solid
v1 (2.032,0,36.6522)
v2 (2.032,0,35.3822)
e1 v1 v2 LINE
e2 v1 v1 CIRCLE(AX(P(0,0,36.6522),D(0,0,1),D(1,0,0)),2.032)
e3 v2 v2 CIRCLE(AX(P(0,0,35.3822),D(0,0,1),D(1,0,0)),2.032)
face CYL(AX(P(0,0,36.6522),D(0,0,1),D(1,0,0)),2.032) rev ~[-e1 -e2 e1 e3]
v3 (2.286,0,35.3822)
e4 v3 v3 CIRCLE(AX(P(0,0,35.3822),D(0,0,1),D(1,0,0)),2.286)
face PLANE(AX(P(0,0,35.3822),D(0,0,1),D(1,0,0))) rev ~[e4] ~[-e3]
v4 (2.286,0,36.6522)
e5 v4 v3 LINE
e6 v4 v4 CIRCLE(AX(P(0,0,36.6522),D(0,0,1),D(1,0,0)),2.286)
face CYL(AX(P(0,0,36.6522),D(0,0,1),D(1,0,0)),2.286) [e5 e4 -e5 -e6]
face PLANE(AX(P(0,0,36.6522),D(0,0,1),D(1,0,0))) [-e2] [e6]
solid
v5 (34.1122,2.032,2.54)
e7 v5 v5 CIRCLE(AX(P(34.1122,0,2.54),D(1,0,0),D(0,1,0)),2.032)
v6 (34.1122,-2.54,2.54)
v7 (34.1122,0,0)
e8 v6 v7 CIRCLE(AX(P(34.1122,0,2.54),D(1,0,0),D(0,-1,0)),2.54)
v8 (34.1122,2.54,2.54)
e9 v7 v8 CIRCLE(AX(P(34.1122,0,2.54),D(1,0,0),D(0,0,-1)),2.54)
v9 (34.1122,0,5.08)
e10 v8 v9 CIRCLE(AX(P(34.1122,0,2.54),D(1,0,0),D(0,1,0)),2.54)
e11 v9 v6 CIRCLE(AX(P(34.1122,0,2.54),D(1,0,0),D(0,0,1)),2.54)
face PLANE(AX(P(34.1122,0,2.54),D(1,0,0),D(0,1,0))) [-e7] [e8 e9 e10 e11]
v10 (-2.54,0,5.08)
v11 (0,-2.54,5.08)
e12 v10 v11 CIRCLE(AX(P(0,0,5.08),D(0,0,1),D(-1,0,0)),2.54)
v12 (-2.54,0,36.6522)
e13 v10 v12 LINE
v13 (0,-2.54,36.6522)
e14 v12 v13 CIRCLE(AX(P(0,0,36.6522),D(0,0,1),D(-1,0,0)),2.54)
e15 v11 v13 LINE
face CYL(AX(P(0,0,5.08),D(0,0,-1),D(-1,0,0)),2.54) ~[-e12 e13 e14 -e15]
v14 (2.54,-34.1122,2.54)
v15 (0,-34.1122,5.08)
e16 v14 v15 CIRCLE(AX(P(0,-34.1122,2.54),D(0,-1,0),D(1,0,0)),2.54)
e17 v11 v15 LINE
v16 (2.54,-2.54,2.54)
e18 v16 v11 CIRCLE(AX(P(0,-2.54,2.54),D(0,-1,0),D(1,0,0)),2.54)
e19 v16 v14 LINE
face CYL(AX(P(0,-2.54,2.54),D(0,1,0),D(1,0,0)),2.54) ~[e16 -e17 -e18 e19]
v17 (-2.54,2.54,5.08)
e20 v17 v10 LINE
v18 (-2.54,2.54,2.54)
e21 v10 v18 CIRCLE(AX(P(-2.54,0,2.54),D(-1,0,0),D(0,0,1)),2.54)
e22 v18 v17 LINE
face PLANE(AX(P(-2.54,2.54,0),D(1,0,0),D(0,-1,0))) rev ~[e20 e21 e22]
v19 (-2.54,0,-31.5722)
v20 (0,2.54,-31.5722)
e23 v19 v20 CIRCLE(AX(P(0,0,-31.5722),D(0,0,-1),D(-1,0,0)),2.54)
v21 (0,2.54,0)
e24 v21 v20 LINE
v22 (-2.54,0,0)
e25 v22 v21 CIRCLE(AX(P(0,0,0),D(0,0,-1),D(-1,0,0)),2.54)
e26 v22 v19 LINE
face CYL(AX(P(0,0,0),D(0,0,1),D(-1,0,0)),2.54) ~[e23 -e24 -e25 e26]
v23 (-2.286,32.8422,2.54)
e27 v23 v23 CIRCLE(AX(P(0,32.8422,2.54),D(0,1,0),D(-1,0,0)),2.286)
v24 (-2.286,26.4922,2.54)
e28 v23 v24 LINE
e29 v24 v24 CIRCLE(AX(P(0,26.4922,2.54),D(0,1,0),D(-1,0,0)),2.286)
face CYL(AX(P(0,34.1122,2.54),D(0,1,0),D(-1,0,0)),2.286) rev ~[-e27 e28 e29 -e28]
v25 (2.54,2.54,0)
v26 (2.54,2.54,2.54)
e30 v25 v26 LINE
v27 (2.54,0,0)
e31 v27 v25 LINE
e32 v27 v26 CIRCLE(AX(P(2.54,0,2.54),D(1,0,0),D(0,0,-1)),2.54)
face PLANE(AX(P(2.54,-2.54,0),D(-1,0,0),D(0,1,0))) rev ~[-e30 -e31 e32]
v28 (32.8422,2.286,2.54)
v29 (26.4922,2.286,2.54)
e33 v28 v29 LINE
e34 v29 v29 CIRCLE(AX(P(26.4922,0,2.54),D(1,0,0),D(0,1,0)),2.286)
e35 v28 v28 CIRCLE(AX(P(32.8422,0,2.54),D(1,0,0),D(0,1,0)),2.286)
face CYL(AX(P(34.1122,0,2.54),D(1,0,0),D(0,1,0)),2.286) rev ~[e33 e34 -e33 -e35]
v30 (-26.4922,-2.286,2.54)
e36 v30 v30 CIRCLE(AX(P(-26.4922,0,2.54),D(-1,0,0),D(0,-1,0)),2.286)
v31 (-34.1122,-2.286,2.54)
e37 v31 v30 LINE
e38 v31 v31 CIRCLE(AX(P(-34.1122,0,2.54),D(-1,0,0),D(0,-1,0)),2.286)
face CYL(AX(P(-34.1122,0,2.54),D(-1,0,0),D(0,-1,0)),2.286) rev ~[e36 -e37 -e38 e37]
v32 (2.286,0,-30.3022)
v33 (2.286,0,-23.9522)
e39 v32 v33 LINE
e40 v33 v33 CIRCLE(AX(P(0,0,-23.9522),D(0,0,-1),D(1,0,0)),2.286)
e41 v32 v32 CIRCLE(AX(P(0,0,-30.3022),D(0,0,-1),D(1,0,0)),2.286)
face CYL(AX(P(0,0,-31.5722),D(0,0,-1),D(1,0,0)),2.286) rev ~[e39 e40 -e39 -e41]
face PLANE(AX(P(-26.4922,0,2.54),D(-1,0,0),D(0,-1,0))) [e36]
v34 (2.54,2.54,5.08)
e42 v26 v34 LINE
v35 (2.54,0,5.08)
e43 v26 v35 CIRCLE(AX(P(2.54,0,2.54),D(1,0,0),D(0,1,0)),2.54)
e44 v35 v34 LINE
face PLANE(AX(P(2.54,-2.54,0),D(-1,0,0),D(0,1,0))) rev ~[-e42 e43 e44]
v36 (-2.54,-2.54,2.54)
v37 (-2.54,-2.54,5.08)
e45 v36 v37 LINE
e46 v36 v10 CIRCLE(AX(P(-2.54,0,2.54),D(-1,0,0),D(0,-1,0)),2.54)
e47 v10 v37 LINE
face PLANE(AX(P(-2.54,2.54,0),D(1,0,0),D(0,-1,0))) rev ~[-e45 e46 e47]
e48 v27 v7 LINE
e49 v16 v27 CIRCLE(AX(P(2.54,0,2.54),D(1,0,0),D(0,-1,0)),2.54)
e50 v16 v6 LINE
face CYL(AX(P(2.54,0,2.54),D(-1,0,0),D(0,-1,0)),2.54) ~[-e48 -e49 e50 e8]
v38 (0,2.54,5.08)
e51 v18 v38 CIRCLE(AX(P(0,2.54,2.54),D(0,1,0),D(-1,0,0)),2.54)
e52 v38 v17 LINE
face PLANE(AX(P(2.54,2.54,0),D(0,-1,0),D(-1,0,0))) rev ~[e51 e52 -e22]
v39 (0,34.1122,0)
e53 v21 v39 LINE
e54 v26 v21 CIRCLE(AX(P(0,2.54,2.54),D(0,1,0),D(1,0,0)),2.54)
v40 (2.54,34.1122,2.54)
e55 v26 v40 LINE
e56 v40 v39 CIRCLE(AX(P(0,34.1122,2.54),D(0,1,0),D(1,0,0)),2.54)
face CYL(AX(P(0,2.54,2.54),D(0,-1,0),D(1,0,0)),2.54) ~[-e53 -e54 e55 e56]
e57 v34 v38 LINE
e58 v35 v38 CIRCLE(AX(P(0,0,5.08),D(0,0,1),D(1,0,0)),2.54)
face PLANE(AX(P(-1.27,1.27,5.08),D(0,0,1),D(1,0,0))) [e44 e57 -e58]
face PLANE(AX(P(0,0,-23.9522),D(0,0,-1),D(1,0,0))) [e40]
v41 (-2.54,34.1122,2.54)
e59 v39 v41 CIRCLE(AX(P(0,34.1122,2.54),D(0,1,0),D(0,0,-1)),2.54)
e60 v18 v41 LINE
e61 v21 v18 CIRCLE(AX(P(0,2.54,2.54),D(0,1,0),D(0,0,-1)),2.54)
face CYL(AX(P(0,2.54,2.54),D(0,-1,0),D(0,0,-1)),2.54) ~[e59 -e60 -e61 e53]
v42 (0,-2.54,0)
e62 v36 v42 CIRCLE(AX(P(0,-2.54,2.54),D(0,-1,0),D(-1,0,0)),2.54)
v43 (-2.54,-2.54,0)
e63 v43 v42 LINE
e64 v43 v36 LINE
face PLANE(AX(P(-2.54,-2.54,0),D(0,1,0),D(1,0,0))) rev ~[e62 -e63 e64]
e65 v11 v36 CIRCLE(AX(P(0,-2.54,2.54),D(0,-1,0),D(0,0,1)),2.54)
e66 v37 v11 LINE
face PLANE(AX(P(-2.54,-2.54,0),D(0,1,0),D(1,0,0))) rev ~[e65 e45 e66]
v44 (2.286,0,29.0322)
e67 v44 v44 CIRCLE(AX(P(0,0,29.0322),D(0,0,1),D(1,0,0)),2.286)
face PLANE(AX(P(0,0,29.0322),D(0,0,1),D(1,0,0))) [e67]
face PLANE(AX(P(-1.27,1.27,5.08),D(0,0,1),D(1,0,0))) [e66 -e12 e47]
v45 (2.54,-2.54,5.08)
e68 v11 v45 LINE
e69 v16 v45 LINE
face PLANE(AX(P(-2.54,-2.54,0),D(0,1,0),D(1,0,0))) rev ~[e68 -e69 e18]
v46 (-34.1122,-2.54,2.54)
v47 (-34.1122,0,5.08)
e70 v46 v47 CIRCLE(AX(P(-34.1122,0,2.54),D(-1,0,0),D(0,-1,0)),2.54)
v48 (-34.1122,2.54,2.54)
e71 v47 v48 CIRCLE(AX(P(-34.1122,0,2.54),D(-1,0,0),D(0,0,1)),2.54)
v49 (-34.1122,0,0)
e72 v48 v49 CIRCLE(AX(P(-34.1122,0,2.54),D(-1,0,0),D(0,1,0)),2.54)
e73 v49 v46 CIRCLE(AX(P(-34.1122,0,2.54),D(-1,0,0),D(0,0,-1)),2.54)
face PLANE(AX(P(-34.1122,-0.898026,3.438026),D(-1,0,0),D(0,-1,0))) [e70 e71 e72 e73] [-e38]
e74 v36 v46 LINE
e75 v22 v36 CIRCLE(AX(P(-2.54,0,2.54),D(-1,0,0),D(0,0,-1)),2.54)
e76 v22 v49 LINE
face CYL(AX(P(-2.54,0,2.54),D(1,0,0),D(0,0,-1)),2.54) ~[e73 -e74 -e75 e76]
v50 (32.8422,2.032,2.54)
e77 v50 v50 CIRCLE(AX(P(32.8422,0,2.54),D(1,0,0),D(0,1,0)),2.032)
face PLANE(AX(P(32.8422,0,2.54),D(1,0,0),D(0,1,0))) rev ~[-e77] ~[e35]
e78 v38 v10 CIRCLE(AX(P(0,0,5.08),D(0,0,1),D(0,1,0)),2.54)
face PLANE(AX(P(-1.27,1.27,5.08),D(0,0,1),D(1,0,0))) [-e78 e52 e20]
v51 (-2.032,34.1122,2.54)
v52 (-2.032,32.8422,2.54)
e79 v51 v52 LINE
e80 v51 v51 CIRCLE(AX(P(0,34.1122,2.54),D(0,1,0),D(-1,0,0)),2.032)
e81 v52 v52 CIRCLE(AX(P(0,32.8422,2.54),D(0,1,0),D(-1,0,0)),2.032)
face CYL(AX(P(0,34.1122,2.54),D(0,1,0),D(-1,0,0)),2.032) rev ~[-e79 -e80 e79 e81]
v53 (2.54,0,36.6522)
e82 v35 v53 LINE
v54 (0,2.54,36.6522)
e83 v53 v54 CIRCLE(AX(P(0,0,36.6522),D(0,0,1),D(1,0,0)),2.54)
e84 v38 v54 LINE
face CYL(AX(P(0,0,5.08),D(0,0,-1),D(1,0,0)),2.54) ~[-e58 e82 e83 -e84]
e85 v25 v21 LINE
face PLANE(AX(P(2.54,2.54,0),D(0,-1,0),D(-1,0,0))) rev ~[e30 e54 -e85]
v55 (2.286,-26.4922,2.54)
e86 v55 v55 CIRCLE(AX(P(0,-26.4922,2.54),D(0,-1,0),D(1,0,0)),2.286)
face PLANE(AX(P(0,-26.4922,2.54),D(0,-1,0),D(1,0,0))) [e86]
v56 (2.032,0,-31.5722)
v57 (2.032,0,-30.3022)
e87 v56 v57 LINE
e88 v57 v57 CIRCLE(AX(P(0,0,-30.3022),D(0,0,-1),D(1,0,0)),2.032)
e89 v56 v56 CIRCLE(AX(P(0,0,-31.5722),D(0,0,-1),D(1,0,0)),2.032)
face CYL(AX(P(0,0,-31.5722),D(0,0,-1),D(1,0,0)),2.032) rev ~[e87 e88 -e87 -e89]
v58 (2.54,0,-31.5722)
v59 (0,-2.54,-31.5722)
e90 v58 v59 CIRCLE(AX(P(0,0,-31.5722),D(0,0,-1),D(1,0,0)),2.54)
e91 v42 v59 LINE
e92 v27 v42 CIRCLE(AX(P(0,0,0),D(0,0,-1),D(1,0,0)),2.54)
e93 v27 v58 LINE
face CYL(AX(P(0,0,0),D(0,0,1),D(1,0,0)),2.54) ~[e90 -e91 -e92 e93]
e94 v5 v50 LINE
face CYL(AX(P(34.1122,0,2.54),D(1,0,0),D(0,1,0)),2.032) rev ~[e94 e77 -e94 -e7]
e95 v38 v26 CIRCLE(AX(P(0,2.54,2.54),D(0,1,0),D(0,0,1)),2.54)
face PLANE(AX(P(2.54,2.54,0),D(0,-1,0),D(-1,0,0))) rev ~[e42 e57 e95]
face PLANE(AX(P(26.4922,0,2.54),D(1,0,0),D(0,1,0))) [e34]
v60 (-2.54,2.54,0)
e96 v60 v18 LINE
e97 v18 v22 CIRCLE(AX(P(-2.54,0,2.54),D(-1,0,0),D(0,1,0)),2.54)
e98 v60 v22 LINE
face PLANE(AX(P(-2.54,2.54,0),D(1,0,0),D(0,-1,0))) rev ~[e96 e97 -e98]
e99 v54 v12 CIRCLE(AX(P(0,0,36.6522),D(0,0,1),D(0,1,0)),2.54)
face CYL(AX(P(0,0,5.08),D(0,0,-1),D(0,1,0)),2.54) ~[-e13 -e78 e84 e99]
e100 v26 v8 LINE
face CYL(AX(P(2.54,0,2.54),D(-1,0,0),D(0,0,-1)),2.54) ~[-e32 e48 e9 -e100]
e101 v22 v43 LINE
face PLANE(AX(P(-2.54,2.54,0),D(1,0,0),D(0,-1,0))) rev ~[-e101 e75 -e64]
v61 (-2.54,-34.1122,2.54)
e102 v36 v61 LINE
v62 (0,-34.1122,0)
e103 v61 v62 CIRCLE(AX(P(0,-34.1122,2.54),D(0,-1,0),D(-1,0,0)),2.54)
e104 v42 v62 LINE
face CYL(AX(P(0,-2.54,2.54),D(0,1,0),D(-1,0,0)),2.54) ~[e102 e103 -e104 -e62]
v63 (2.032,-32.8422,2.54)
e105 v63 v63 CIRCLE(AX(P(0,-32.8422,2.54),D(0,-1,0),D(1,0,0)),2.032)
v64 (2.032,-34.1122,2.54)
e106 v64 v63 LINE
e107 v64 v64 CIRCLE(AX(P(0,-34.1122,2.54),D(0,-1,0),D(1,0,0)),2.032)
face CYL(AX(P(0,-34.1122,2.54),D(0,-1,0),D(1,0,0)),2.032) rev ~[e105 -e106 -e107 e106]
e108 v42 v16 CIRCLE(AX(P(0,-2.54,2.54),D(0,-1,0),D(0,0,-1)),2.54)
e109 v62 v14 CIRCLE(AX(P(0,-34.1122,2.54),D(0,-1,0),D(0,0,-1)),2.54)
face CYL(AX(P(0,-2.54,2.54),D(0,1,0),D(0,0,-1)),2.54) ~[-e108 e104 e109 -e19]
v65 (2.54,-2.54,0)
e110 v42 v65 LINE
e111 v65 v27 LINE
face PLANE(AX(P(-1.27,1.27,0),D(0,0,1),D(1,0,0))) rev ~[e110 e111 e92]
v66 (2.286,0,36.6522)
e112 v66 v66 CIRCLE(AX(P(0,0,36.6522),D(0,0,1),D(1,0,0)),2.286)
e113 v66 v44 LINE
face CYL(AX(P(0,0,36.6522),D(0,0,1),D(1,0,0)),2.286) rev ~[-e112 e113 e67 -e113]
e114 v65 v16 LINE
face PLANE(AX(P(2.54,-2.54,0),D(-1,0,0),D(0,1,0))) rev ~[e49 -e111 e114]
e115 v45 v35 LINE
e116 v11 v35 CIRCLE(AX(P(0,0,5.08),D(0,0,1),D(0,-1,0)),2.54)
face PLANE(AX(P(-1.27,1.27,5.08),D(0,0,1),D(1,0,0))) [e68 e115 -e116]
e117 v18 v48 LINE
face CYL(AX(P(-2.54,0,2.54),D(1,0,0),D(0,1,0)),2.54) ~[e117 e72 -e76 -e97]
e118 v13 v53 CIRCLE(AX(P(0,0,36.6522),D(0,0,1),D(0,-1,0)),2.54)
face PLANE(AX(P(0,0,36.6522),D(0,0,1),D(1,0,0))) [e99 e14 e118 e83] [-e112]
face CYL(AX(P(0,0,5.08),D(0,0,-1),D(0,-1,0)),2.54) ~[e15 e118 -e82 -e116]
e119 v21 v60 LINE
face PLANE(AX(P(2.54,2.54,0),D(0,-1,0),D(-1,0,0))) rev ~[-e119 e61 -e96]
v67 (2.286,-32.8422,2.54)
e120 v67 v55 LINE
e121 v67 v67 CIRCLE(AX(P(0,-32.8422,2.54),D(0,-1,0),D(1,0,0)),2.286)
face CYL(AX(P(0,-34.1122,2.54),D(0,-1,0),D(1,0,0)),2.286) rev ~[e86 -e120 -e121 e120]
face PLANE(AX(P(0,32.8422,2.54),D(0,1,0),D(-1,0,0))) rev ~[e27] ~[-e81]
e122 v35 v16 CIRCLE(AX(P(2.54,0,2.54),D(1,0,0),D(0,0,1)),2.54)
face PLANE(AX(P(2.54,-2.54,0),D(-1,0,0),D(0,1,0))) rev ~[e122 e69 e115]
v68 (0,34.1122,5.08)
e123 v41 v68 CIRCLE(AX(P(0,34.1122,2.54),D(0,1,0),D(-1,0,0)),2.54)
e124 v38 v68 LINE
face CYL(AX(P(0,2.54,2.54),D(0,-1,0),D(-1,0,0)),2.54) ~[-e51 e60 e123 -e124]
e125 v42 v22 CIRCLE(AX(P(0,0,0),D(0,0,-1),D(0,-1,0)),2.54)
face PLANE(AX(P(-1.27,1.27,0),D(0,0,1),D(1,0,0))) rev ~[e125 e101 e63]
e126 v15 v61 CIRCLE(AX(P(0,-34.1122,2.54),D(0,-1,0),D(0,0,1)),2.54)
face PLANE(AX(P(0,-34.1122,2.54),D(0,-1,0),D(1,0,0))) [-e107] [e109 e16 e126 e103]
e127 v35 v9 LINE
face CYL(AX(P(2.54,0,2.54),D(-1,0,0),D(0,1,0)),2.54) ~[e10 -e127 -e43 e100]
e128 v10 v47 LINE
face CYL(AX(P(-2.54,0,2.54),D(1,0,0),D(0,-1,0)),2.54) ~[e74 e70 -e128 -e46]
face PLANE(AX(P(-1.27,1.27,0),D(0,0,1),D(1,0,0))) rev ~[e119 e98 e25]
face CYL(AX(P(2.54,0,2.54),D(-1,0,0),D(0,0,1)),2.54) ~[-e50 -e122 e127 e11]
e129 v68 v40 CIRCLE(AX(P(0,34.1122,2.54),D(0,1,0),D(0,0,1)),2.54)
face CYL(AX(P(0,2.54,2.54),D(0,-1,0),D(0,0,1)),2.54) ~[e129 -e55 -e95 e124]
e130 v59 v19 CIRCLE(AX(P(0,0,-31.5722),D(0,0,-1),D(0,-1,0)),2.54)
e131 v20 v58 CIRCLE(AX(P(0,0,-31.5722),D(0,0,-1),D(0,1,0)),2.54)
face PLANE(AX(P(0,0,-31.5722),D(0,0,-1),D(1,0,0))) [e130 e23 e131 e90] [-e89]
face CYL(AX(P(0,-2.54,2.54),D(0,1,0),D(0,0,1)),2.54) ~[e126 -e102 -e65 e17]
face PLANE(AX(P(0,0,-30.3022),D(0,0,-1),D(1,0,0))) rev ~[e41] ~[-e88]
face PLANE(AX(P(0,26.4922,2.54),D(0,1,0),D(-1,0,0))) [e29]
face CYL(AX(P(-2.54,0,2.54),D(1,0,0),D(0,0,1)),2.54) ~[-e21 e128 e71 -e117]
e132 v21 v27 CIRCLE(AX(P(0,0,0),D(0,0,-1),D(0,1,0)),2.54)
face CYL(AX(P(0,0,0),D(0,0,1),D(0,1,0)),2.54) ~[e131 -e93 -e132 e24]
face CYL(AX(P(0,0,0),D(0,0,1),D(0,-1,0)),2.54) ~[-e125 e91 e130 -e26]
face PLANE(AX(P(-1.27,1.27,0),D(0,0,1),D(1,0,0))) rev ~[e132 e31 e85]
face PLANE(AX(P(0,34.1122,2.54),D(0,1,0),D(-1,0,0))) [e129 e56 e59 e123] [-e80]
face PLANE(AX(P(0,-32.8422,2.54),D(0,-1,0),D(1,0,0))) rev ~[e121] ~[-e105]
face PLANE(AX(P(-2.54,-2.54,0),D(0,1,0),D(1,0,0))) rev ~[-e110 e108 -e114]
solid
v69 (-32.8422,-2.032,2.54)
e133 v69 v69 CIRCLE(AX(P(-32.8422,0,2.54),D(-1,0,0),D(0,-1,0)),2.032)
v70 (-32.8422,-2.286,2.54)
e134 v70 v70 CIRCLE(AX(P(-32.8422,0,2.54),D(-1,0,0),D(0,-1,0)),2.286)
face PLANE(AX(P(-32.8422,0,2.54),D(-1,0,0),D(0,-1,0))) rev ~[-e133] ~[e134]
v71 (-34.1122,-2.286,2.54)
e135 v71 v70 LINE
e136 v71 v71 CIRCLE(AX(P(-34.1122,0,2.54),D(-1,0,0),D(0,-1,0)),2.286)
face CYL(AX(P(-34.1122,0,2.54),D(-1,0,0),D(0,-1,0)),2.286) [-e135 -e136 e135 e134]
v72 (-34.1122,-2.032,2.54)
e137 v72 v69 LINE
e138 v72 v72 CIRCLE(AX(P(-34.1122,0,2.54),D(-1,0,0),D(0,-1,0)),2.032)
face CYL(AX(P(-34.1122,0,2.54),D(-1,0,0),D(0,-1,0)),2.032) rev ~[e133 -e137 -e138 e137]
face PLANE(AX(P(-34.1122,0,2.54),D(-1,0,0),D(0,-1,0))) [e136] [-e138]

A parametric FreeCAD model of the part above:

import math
import FreeCAD as App
import Part
import Sketcher
Q = App.Units.Quantity

doc = App.newDocument("Part")
params = doc.addObject("Spreadsheet::Sheet", "Params")
for row, (alias, value) in enumerate([
    ("sketch1_width", "0.2 in"),
    ("pad1_length", "0.2 in"),
    ("sketch2_radius", "0.1 in"),
    ("pad2_length", "1.243 in"),
    ("sketch3_diameter", "0.18 in"),
    ("pocket1_length", "0.3 in"),
    ("sketch4_diameter", "0.18 in"),
    ("sketch4_diameter2", "0.16 in"),
    ("pad3_length", "0.05 in"),
    ("sketch5_radius", "0.1 in"),
    ("pad4_length", "1.243 in"),
    ("sketch6_diameter", "0.18 in"),
    ("pocket2_length", "0.3 in"),
    ("sketch7_diameter", "0.18 in"),
    ("sketch7_diameter2", "0.16 in"),
    ("pad5_length", "0.05 in"),
    ("sketch8_radius", "0.1 in"),
    ("pad6_length", "1.243 in"),
    ("sketch9_diameter", "0.18 in"),
    ("pocket3_length", "0.3 in"),
    ("sketch10_diameter", "0.18 in"),
    ("sketch10_diameter2", "0.16 in"),
    ("pad7_length", "0.05 in"),
    ("sketch11_radius", "0.1 in"),
    ("pad8_length", "1.243 in"),
    ("sketch12_diameter", "0.18 in"),
    ("pocket4_length", "0.3 in"),
    ("sketch13_diameter", "0.18 in"),
    ("sketch13_diameter2", "0.16 in"),
    ("pad9_length", "0.05 in"),
    ("sketch14_radius", "0.1 in"),
    ("pad10_length", "1.243 in"),
    ("sketch15_diameter", "0.18 in"),
    ("pocket5_length", "0.3 in"),
    ("sketch16_radius", "0.1 in"),
    ("pad11_length", "1.243 in"),
    ("sketch17_diameter", "0.18 in"),
    ("pocket6_length", "0.3 in"),
    ("sketch18_diameter", "0.18 in"),
    ("sketch18_diameter2", "0.16 in"),
    ("pad12_length", "0.05 in"),
    ("sketch19_diameter", "0.18 in"),
    ("sketch19_diameter2", "0.16 in"),
    ("pad13_length", "0.05 in"),
], start=1):
    params.set(f"A{row}", alias)
    params.set(f"B{row}", "=" + value)
    params.setAlias(f"B{row}", alias)

body = doc.addObject("PartDesign::Body", "Body")

sketch1 = body.newObject("Sketcher::SketchObject", "Sketch")
sketch1.AttachmentSupport = (doc.getObject("XY_Plane"), [""])
sketch1.MapMode = "FlatFace"
sketch1.addGeometry(Part.LineSegment(App.Vector(-3, 3, 0), App.Vector(-3, -3, 0)), False)
sketch1.addGeometry(Part.LineSegment(App.Vector(-3, -3, 0), App.Vector(3, -3, 0)), False)
sketch1.addGeometry(Part.LineSegment(App.Vector(3, -3, 0), App.Vector(3, 3, 0)), False)
sketch1.addGeometry(Part.LineSegment(App.Vector(3, 3, 0), App.Vector(-3, 3, 0)), False)
sketch1.addConstraint(Sketcher.Constraint("Coincident", 0, 2, 1, 1))
sketch1.addConstraint(Sketcher.Constraint("Coincident", 1, 2, 2, 1))
sketch1.addConstraint(Sketcher.Constraint("Coincident", 2, 2, 3, 1))
sketch1.addConstraint(Sketcher.Constraint("Coincident", 3, 2, 0, 1))
sketch1.addConstraint(Sketcher.Constraint("Vertical", 0))
sketch1.addConstraint(Sketcher.Constraint("Horizontal", 1))
sketch1.addConstraint(Sketcher.Constraint("Vertical", 2))
sketch1.addConstraint(Sketcher.Constraint("Horizontal", 3))
sketch1.addConstraint(Sketcher.Constraint("Symmetric", 0, 2, 2, 2, -1, 1))
sketch1.addConstraint(Sketcher.Constraint("Equal", 3, 0))
sketch1.addConstraint(Sketcher.Constraint("DistanceX", 1, 1, 1, 2, Q("0.2 in")))
sketch1.setExpression("Constraints[10]", "Params.sketch1_width")
pad1 = body.newObject("PartDesign::Pad", "Pad")
pad1.Profile = sketch1
pad1.setExpression("Length", "Params.pad1_length")

sketch2 = body.newObject("Sketcher::SketchObject", "Sketch001")
sketch2.AttachmentSupport = (doc.getObject("XY_Plane"), [""])
sketch2.MapMode = "FlatFace"
sketch2.addGeometry(Part.ArcOfCircle(Part.Circle(App.Vector(0, 0, 0), App.Vector(0, 0, 1), 2.5), math.radians(0), math.radians(90)), False)
sketch2.addGeometry(Part.ArcOfCircle(Part.Circle(App.Vector(0, 0, 0), App.Vector(0, 0, 1), 2.5), math.radians(-90), math.radians(0)), False)
sketch2.addGeometry(Part.ArcOfCircle(Part.Circle(App.Vector(0, 0, 0), App.Vector(0, 0, 1), 2.5), math.radians(180), math.radians(270)), False)
sketch2.addGeometry(Part.ArcOfCircle(Part.Circle(App.Vector(0, 0, 0), App.Vector(0, 0, 1), 2.5), math.radians(90), math.radians(180)), False)
sketch2.addConstraint(Sketcher.Constraint("Tangent", 0, 1, 1, 2))
sketch2.addConstraint(Sketcher.Constraint("Tangent", 1, 1, 2, 2))
sketch2.addConstraint(Sketcher.Constraint("Tangent", 2, 1, 3, 2))
sketch2.addConstraint(Sketcher.Constraint("Tangent", 3, 1, 0, 2))
sketch2.addConstraint(Sketcher.Constraint("Coincident", 0, 3, -1, 1))
sketch2.addConstraint(Sketcher.Constraint("Equal", 0, 1))
sketch2.addConstraint(Sketcher.Constraint("PointOnObject", 0, 1, -1))
sketch2.addConstraint(Sketcher.Constraint("PointOnObject", 1, 1, -2))
sketch2.addConstraint(Sketcher.Constraint("PointOnObject", 2, 1, -1))
sketch2.addConstraint(Sketcher.Constraint("PointOnObject", 3, 1, -2))
sketch2.addConstraint(Sketcher.Constraint("Radius", 0, Q("0.1 in")))
sketch2.setExpression("Constraints[10]", "Params.sketch2_radius")
pad2 = body.newObject("PartDesign::Pad", "Pad001")
pad2.Profile = sketch2
pad2.setExpression("Length", "Params.pad2_length")
pad2.Reversed = True

sketch3 = body.newObject("Sketcher::SketchObject", "Sketch002")
sketch3.AttachmentSupport = (doc.getObject("XY_Plane"), [""])
sketch3.MapMode = "FlatFace"
sketch3.AttachmentOffset = App.Placement(App.Vector(0, 0, -1.243 * 25.4), App.Rotation())
sketch3.addGeometry(Part.Circle(App.Vector(0, 0, 0), App.Vector(0, 0, 1), 2.3), False)
sketch3.addConstraint(Sketcher.Constraint("Coincident", 0, 3, -1, 1))
sketch3.addConstraint(Sketcher.Constraint("Diameter", 0, Q("0.18 in")))
sketch3.setExpression("Constraints[1]", "Params.sketch3_diameter")
pocket1 = body.newObject("PartDesign::Pocket", "Pocket")
pocket1.Profile = sketch3
pocket1.setExpression("Length", "Params.pocket1_length")
pocket1.Reversed = True

sketch4 = body.newObject("Sketcher::SketchObject", "Sketch003")
sketch4.AttachmentSupport = (doc.getObject("XY_Plane"), [""])
sketch4.MapMode = "FlatFace"
sketch4.AttachmentOffset = App.Placement(App.Vector(0, 0, -1.243 * 25.4), App.Rotation())
sketch4.addGeometry(Part.Circle(App.Vector(0, 0, 0), App.Vector(0, 0, 1), 2.3), False)
sketch4.addGeometry(Part.Circle(App.Vector(0, 0, 0), App.Vector(0, 0, 1), 2), False)
sketch4.addConstraint(Sketcher.Constraint("Coincident", 0, 3, -1, 1))
sketch4.addConstraint(Sketcher.Constraint("Coincident", 1, 3, -1, 1))
sketch4.addConstraint(Sketcher.Constraint("Diameter", 0, Q("0.18 in")))
sketch4.addConstraint(Sketcher.Constraint("Diameter", 1, Q("0.16 in")))
sketch4.setExpression("Constraints[2]", "Params.sketch4_diameter")
sketch4.setExpression("Constraints[3]", "Params.sketch4_diameter2")
pad3 = body.newObject("PartDesign::Pad", "Pad002")
pad3.Profile = sketch4
pad3.setExpression("Length", "Params.pad3_length")

sketch5 = body.newObject("Sketcher::SketchObject", "Sketch004")
sketch5.AttachmentSupport = (doc.getObject("YZ_Plane"), [""])
sketch5.MapMode = "FlatFace"
sketch5.AttachmentOffset = App.Placement(App.Vector(0, 0, 0.1 * 25.4), App.Rotation())
sketch5.addGeometry(Part.ArcOfCircle(Part.Circle(App.Vector(0, 2.5, 0), App.Vector(0, 0, 1), 2.5), math.radians(-90), math.radians(0)), False)
sketch5.addGeometry(Part.ArcOfCircle(Part.Circle(App.Vector(0, 2.5, 0), App.Vector(0, 0, 1), 2.5), math.radians(0), math.radians(90)), False)
sketch5.addGeometry(Part.ArcOfCircle(Part.Circle(App.Vector(0, 2.5, 0), App.Vector(0, 0, 1), 2.5), math.radians(90), math.radians(180)), False)
sketch5.addGeometry(Part.ArcOfCircle(Part.Circle(App.Vector(0, 2.5, 0), App.Vector(0, 0, 1), 2.5), math.radians(180), math.radians(270)), False)
sketch5.addConstraint(Sketcher.Constraint("Tangent", 0, 2, 1, 1))
sketch5.addConstraint(Sketcher.Constraint("Tangent", 1, 2, 2, 1))
sketch5.addConstraint(Sketcher.Constraint("Tangent", 2, 2, 3, 1))
sketch5.addConstraint(Sketcher.Constraint("Tangent", 3, 2, 0, 1))
sketch5.addConstraint(Sketcher.Constraint("Coincident", 3, 2, -1, 1))
sketch5.addConstraint(Sketcher.Constraint("Equal", 0, 1))
sketch5.addConstraint(Sketcher.Constraint("Symmetric", 0, 2, 2, 2, -2))
sketch5.addConstraint(Sketcher.Constraint("PointOnObject", 1, 2, -2))
sketch5.addConstraint(Sketcher.Constraint("Horizontal", 3, 3, 0, 2))
sketch5.addConstraint(Sketcher.Constraint("Radius", 0, Q("0.1 in")))
sketch5.setExpression("Constraints[9]", "Params.sketch5_radius")
pad4 = body.newObject("PartDesign::Pad", "Pad003")
pad4.Profile = sketch5
pad4.setExpression("Length", "Params.pad4_length")

sketch6 = body.newObject("Sketcher::SketchObject", "Sketch005")
sketch6.AttachmentSupport = (doc.getObject("YZ_Plane"), [""])
sketch6.MapMode = "FlatFace"
sketch6.AttachmentOffset = App.Placement(App.Vector(0, 0, 1.343 * 25.4), App.Rotation())
sketch6.addGeometry(Part.Circle(App.Vector(0, 2.5, 0), App.Vector(0, 0, 1), 2.3), False)
sketch6.addConstraint(Sketcher.Constraint("PointOnObject", 0, 3, -2))
sketch6.addConstraint(Sketcher.Constraint("Diameter", 0, Q("0.18 in")))
sketch6.addConstraint(Sketcher.Constraint("DistanceY", -1, 1, 0, 3, Q("0.1 in")))
sketch6.setExpression("Constraints[1]", "Params.sketch6_diameter")
pocket2 = body.newObject("PartDesign::Pocket", "Pocket001")
pocket2.Profile = sketch6
pocket2.setExpression("Length", "Params.pocket2_length")

sketch7 = body.newObject("Sketcher::SketchObject", "Sketch006")
sketch7.AttachmentSupport = (doc.getObject("YZ_Plane"), [""])
sketch7.MapMode = "FlatFace"
sketch7.AttachmentOffset = App.Placement(App.Vector(0, 0, 1.343 * 25.4), App.Rotation())
sketch7.addGeometry(Part.Circle(App.Vector(0, 2.5, 0), App.Vector(0, 0, 1), 2.3), False)
sketch7.addGeometry(Part.Circle(App.Vector(0, 2.5, 0), App.Vector(0, 0, 1), 2), False)
sketch7.addConstraint(Sketcher.Constraint("Coincident", 1, 3, 0, 3))
sketch7.addConstraint(Sketcher.Constraint("PointOnObject", 0, 3, -2))
sketch7.addConstraint(Sketcher.Constraint("Diameter", 0, Q("0.18 in")))
sketch7.addConstraint(Sketcher.Constraint("Diameter", 1, Q("0.16 in")))
sketch7.addConstraint(Sketcher.Constraint("DistanceY", -1, 1, 0, 3, Q("0.1 in")))
sketch7.setExpression("Constraints[2]", "Params.sketch7_diameter")
sketch7.setExpression("Constraints[3]", "Params.sketch7_diameter2")
pad5 = body.newObject("PartDesign::Pad", "Pad004")
pad5.Profile = sketch7
pad5.setExpression("Length", "Params.pad5_length")
pad5.Reversed = True

sketch8 = body.newObject("Sketcher::SketchObject", "Sketch007")
sketch8.AttachmentSupport = (doc.getObject("XZ_Plane"), [""])
sketch8.MapMode = "FlatFace"
sketch8.AttachmentOffset = App.Placement(App.Vector(0, 0, 0.1 * 25.4), App.Rotation())
sketch8.addGeometry(Part.ArcOfCircle(Part.Circle(App.Vector(0, 2.5, 0), App.Vector(0, 0, 1), 2.5), math.radians(90), math.radians(180)), False)
sketch8.addGeometry(Part.ArcOfCircle(Part.Circle(App.Vector(0, 2.5, 0), App.Vector(0, 0, 1), 2.5), math.radians(180), math.radians(270)), False)
sketch8.addGeometry(Part.ArcOfCircle(Part.Circle(App.Vector(0, 2.5, 0), App.Vector(0, 0, 1), 2.5), math.radians(-90), math.radians(0)), False)
sketch8.addGeometry(Part.ArcOfCircle(Part.Circle(App.Vector(0, 2.5, 0), App.Vector(0, 0, 1), 2.5), math.radians(0), math.radians(90)), False)
sketch8.addConstraint(Sketcher.Constraint("Tangent", 0, 2, 1, 1))
sketch8.addConstraint(Sketcher.Constraint("Tangent", 1, 2, 2, 1))
sketch8.addConstraint(Sketcher.Constraint("Tangent", 2, 2, 3, 1))
sketch8.addConstraint(Sketcher.Constraint("Tangent", 3, 2, 0, 1))
sketch8.addConstraint(Sketcher.Constraint("Coincident", 1, 2, -1, 1))
sketch8.addConstraint(Sketcher.Constraint("Equal", 0, 1))
sketch8.addConstraint(Sketcher.Constraint("Symmetric", 0, 2, 2, 2, -2))
sketch8.addConstraint(Sketcher.Constraint("PointOnObject", 3, 2, -2))
sketch8.addConstraint(Sketcher.Constraint("Horizontal", 3, 3, 0, 2))
sketch8.addConstraint(Sketcher.Constraint("Radius", 0, Q("0.1 in")))
sketch8.setExpression("Constraints[9]", "Params.sketch8_radius")
pad6 = body.newObject("PartDesign::Pad", "Pad005")
pad6.Profile = sketch8
pad6.setExpression("Length", "Params.pad6_length")

sketch9 = body.newObject("Sketcher::SketchObject", "Sketch008")
sketch9.AttachmentSupport = (doc.getObject("XZ_Plane"), [""])
sketch9.MapMode = "FlatFace"
sketch9.AttachmentOffset = App.Placement(App.Vector(0, 0, 1.343 * 25.4), App.Rotation())
sketch9.addGeometry(Part.Circle(App.Vector(0, 2.5, 0), App.Vector(0, 0, 1), 2.3), False)
sketch9.addConstraint(Sketcher.Constraint("PointOnObject", 0, 3, -2))
sketch9.addConstraint(Sketcher.Constraint("Diameter", 0, Q("0.18 in")))
sketch9.addConstraint(Sketcher.Constraint("DistanceY", -1, 1, 0, 3, Q("0.1 in")))
sketch9.setExpression("Constraints[1]", "Params.sketch9_diameter")
pocket3 = body.newObject("PartDesign::Pocket", "Pocket002")
pocket3.Profile = sketch9
pocket3.setExpression("Length", "Params.pocket3_length")

sketch10 = body.newObject("Sketcher::SketchObject", "Sketch009")
sketch10.AttachmentSupport = (doc.getObject("XZ_Plane"), [""])
sketch10.MapMode = "FlatFace"
sketch10.AttachmentOffset = App.Placement(App.Vector(0, 0, 1.343 * 25.4), App.Rotation())
sketch10.addGeometry(Part.Circle(App.Vector(0, 2.5, 0), App.Vector(0, 0, 1), 2.3), False)
sketch10.addGeometry(Part.Circle(App.Vector(0, 2.5, 0), App.Vector(0, 0, 1), 2), False)
sketch10.addConstraint(Sketcher.Constraint("Coincident", 1, 3, 0, 3))
sketch10.addConstraint(Sketcher.Constraint("PointOnObject", 0, 3, -2))
sketch10.addConstraint(Sketcher.Constraint("Diameter", 0, Q("0.18 in")))
sketch10.addConstraint(Sketcher.Constraint("Diameter", 1, Q("0.16 in")))
sketch10.addConstraint(Sketcher.Constraint("DistanceY", -1, 1, 0, 3, Q("0.1 in")))
sketch10.setExpression("Constraints[2]", "Params.sketch10_diameter")
sketch10.setExpression("Constraints[3]", "Params.sketch10_diameter2")
pad7 = body.newObject("PartDesign::Pad", "Pad006")
pad7.Profile = sketch10
pad7.setExpression("Length", "Params.pad7_length")
pad7.Reversed = True

sketch11 = body.newObject("Sketcher::SketchObject", "Sketch010")
sketch11.AttachmentSupport = (doc.getObject("XZ_Plane"), [""])
sketch11.MapMode = "FlatFace"
sketch11.AttachmentOffset = App.Placement(App.Vector(0, 0, -0.1 * 25.4), App.Rotation())
sketch11.addGeometry(Part.ArcOfCircle(Part.Circle(App.Vector(0, 2.5, 0), App.Vector(0, 0, 1), 2.5), math.radians(180), math.radians(270)), False)
sketch11.addGeometry(Part.ArcOfCircle(Part.Circle(App.Vector(0, 2.5, 0), App.Vector(0, 0, 1), 2.5), math.radians(90), math.radians(180)), False)
sketch11.addGeometry(Part.ArcOfCircle(Part.Circle(App.Vector(0, 2.5, 0), App.Vector(0, 0, 1), 2.5), math.radians(0), math.radians(90)), False)
sketch11.addGeometry(Part.ArcOfCircle(Part.Circle(App.Vector(0, 2.5, 0), App.Vector(0, 0, 1), 2.5), math.radians(-90), math.radians(0)), False)
sketch11.addConstraint(Sketcher.Constraint("Tangent", 0, 1, 1, 2))
sketch11.addConstraint(Sketcher.Constraint("Tangent", 1, 1, 2, 2))
sketch11.addConstraint(Sketcher.Constraint("Tangent", 2, 1, 3, 2))
sketch11.addConstraint(Sketcher.Constraint("Tangent", 3, 1, 0, 2))
sketch11.addConstraint(Sketcher.Constraint("Coincident", 3, 1, -1, 1))
sketch11.addConstraint(Sketcher.Constraint("Equal", 0, 1))
sketch11.addConstraint(Sketcher.Constraint("Symmetric", 0, 1, 2, 1, -2))
sketch11.addConstraint(Sketcher.Constraint("PointOnObject", 1, 1, -2))
sketch11.addConstraint(Sketcher.Constraint("Horizontal", 3, 3, 0, 1))
sketch11.addConstraint(Sketcher.Constraint("Radius", 0, Q("0.1 in")))
sketch11.setExpression("Constraints[9]", "Params.sketch11_radius")
pad8 = body.newObject("PartDesign::Pad", "Pad007")
pad8.Profile = sketch11
pad8.setExpression("Length", "Params.pad8_length")
pad8.Reversed = True

sketch12 = body.newObject("Sketcher::SketchObject", "Sketch011")
sketch12.AttachmentSupport = (doc.getObject("XZ_Plane"), [""])
sketch12.MapMode = "FlatFace"
sketch12.AttachmentOffset = App.Placement(App.Vector(0, 0, -1.343 * 25.4), App.Rotation())
sketch12.addGeometry(Part.Circle(App.Vector(0, 2.5, 0), App.Vector(0, 0, 1), 2.3), False)
sketch12.addConstraint(Sketcher.Constraint("PointOnObject", 0, 3, -2))
sketch12.addConstraint(Sketcher.Constraint("Diameter", 0, Q("0.18 in")))
sketch12.addConstraint(Sketcher.Constraint("DistanceY", -1, 1, 0, 3, Q("0.1 in")))
sketch12.setExpression("Constraints[1]", "Params.sketch12_diameter")
pocket4 = body.newObject("PartDesign::Pocket", "Pocket003")
pocket4.Profile = sketch12
pocket4.setExpression("Length", "Params.pocket4_length")
pocket4.Reversed = True

sketch13 = body.newObject("Sketcher::SketchObject", "Sketch012")
sketch13.AttachmentSupport = (doc.getObject("XZ_Plane"), [""])
sketch13.MapMode = "FlatFace"
sketch13.AttachmentOffset = App.Placement(App.Vector(0, 0, -1.343 * 25.4), App.Rotation())
sketch13.addGeometry(Part.Circle(App.Vector(0, 2.5, 0), App.Vector(0, 0, 1), 2.3), False)
sketch13.addGeometry(Part.Circle(App.Vector(0, 2.5, 0), App.Vector(0, 0, 1), 2), False)
sketch13.addConstraint(Sketcher.Constraint("Coincident", 1, 3, 0, 3))
sketch13.addConstraint(Sketcher.Constraint("PointOnObject", 0, 3, -2))
sketch13.addConstraint(Sketcher.Constraint("Diameter", 0, Q("0.18 in")))
sketch13.addConstraint(Sketcher.Constraint("Diameter", 1, Q("0.16 in")))
sketch13.addConstraint(Sketcher.Constraint("DistanceY", -1, 1, 0, 3, Q("0.1 in")))
sketch13.setExpression("Constraints[2]", "Params.sketch13_diameter")
sketch13.setExpression("Constraints[3]", "Params.sketch13_diameter2")
pad9 = body.newObject("PartDesign::Pad", "Pad008")
pad9.Profile = sketch13
pad9.setExpression("Length", "Params.pad9_length")

sketch14 = body.newObject("Sketcher::SketchObject", "Sketch013")
sketch14.AttachmentSupport = (doc.getObject("XY_Plane"), [""])
sketch14.MapMode = "FlatFace"
sketch14.AttachmentOffset = App.Placement(App.Vector(0, 0, 0.2 * 25.4), App.Rotation())
sketch14.addGeometry(Part.ArcOfCircle(Part.Circle(App.Vector(0, 0, 0), App.Vector(0, 0, 1), 2.5), math.radians(-90), math.radians(0)), False)
sketch14.addGeometry(Part.ArcOfCircle(Part.Circle(App.Vector(0, 0, 0), App.Vector(0, 0, 1), 2.5), math.radians(0), math.radians(90)), False)
sketch14.addGeometry(Part.ArcOfCircle(Part.Circle(App.Vector(0, 0, 0), App.Vector(0, 0, 1), 2.5), math.radians(90), math.radians(180)), False)
sketch14.addGeometry(Part.ArcOfCircle(Part.Circle(App.Vector(0, 0, 0), App.Vector(0, 0, 1), 2.5), math.radians(180), math.radians(270)), False)
sketch14.addConstraint(Sketcher.Constraint("Tangent", 0, 2, 1, 1))
sketch14.addConstraint(Sketcher.Constraint("Tangent", 1, 2, 2, 1))
sketch14.addConstraint(Sketcher.Constraint("Tangent", 2, 2, 3, 1))
sketch14.addConstraint(Sketcher.Constraint("Tangent", 3, 2, 0, 1))
sketch14.addConstraint(Sketcher.Constraint("Coincident", 0, 3, -1, 1))
sketch14.addConstraint(Sketcher.Constraint("Equal", 0, 1))
sketch14.addConstraint(Sketcher.Constraint("PointOnObject", 0, 2, -1))
sketch14.addConstraint(Sketcher.Constraint("PointOnObject", 1, 2, -2))
sketch14.addConstraint(Sketcher.Constraint("PointOnObject", 2, 2, -1))
sketch14.addConstraint(Sketcher.Constraint("PointOnObject", 3, 2, -2))
sketch14.addConstraint(Sketcher.Constraint("Radius", 0, Q("0.1 in")))
sketch14.setExpression("Constraints[10]", "Params.sketch14_radius")
pad10 = body.newObject("PartDesign::Pad", "Pad009")
pad10.Profile = sketch14
pad10.setExpression("Length", "Params.pad10_length")

sketch15 = body.newObject("Sketcher::SketchObject", "Sketch014")
sketch15.AttachmentSupport = (doc.getObject("XY_Plane"), [""])
sketch15.MapMode = "FlatFace"
sketch15.AttachmentOffset = App.Placement(App.Vector(0, 0, 1.443 * 25.4), App.Rotation())
sketch15.addGeometry(Part.Circle(App.Vector(0, 0, 0), App.Vector(0, 0, 1), 2.3), False)
sketch15.addConstraint(Sketcher.Constraint("Coincident", 0, 3, -1, 1))
sketch15.addConstraint(Sketcher.Constraint("Diameter", 0, Q("0.18 in")))
sketch15.setExpression("Constraints[1]", "Params.sketch15_diameter")
pocket5 = body.newObject("PartDesign::Pocket", "Pocket004")
pocket5.Profile = sketch15
pocket5.setExpression("Length", "Params.pocket5_length")

sketch16 = body.newObject("Sketcher::SketchObject", "Sketch015")
sketch16.AttachmentSupport = (doc.getObject("YZ_Plane"), [""])
sketch16.MapMode = "FlatFace"
sketch16.AttachmentOffset = App.Placement(App.Vector(0, 0, -0.1 * 25.4), App.Rotation())
sketch16.addGeometry(Part.ArcOfCircle(Part.Circle(App.Vector(0, 2.5, 0), App.Vector(0, 0, 1), 2.5), math.radians(180), math.radians(270)), False)
sketch16.addGeometry(Part.ArcOfCircle(Part.Circle(App.Vector(0, 2.5, 0), App.Vector(0, 0, 1), 2.5), math.radians(90), math.radians(180)), False)
sketch16.addGeometry(Part.ArcOfCircle(Part.Circle(App.Vector(0, 2.5, 0), App.Vector(0, 0, 1), 2.5), math.radians(0), math.radians(90)), False)
sketch16.addGeometry(Part.ArcOfCircle(Part.Circle(App.Vector(0, 2.5, 0), App.Vector(0, 0, 1), 2.5), math.radians(-90), math.radians(0)), False)
sketch16.addConstraint(Sketcher.Constraint("Tangent", 0, 1, 1, 2))
sketch16.addConstraint(Sketcher.Constraint("Tangent", 1, 1, 2, 2))
sketch16.addConstraint(Sketcher.Constraint("Tangent", 2, 1, 3, 2))
sketch16.addConstraint(Sketcher.Constraint("Tangent", 3, 1, 0, 2))
sketch16.addConstraint(Sketcher.Constraint("Coincident", 3, 1, -1, 1))
sketch16.addConstraint(Sketcher.Constraint("Equal", 0, 1))
sketch16.addConstraint(Sketcher.Constraint("Symmetric", 0, 1, 2, 1, -2))
sketch16.addConstraint(Sketcher.Constraint("PointOnObject", 1, 1, -2))
sketch16.addConstraint(Sketcher.Constraint("Horizontal", 3, 3, 0, 1))
sketch16.addConstraint(Sketcher.Constraint("Radius", 0, Q("0.1 in")))
sketch16.setExpression("Constraints[9]", "Params.sketch16_radius")
pad11 = body.newObject("PartDesign::Pad", "Pad010")
pad11.Profile = sketch16
pad11.setExpression("Length", "Params.pad11_length")
pad11.Reversed = True

sketch17 = body.newObject("Sketcher::SketchObject", "Sketch016")
sketch17.AttachmentSupport = (doc.getObject("YZ_Plane"), [""])
sketch17.MapMode = "FlatFace"
sketch17.AttachmentOffset = App.Placement(App.Vector(0, 0, -1.343 * 25.4), App.Rotation())
sketch17.addGeometry(Part.Circle(App.Vector(0, 2.5, 0), App.Vector(0, 0, 1), 2.3), False)
sketch17.addConstraint(Sketcher.Constraint("PointOnObject", 0, 3, -2))
sketch17.addConstraint(Sketcher.Constraint("Diameter", 0, Q("0.18 in")))
sketch17.addConstraint(Sketcher.Constraint("DistanceY", -1, 1, 0, 3, Q("0.1 in")))
sketch17.setExpression("Constraints[1]", "Params.sketch17_diameter")
pocket6 = body.newObject("PartDesign::Pocket", "Pocket005")
pocket6.Profile = sketch17
pocket6.setExpression("Length", "Params.pocket6_length")
pocket6.Reversed = True
body2 = doc.addObject("PartDesign::Body", "Body001")

sketch18 = body2.newObject("Sketcher::SketchObject", "Sketch017")
sketch18.AttachmentSupport = (doc.getObject("XY_Plane001"), [""])
sketch18.MapMode = "FlatFace"
sketch18.AttachmentOffset = App.Placement(App.Vector(0, 0, 1.443 * 25.4), App.Rotation())
sketch18.addGeometry(Part.Circle(App.Vector(0, 0, 0), App.Vector(0, 0, 1), 2.3), False)
sketch18.addGeometry(Part.Circle(App.Vector(0, 0, 0), App.Vector(0, 0, 1), 2), False)
sketch18.addConstraint(Sketcher.Constraint("Coincident", 0, 3, -1, 1))
sketch18.addConstraint(Sketcher.Constraint("Coincident", 1, 3, -1, 1))
sketch18.addConstraint(Sketcher.Constraint("Diameter", 0, Q("0.18 in")))
sketch18.addConstraint(Sketcher.Constraint("Diameter", 1, Q("0.16 in")))
sketch18.setExpression("Constraints[2]", "Params.sketch18_diameter")
sketch18.setExpression("Constraints[3]", "Params.sketch18_diameter2")
pad12 = body2.newObject("PartDesign::Pad", "Pad011")
pad12.Profile = sketch18
pad12.setExpression("Length", "Params.pad12_length")
pad12.Reversed = True
body3 = doc.addObject("PartDesign::Body", "Body002")

sketch19 = body3.newObject("Sketcher::SketchObject", "Sketch018")
sketch19.AttachmentSupport = (doc.getObject("YZ_Plane002"), [""])
sketch19.MapMode = "FlatFace"
sketch19.AttachmentOffset = App.Placement(App.Vector(0, 0, -1.343 * 25.4), App.Rotation())
sketch19.addGeometry(Part.Circle(App.Vector(0, 2.5, 0), App.Vector(0, 0, 1), 2.3), False)
sketch19.addGeometry(Part.Circle(App.Vector(0, 2.5, 0), App.Vector(0, 0, 1), 2), False)
sketch19.addConstraint(Sketcher.Constraint("Coincident", 1, 3, 0, 3))
sketch19.addConstraint(Sketcher.Constraint("PointOnObject", 0, 3, -2))
sketch19.addConstraint(Sketcher.Constraint("Diameter", 0, Q("0.18 in")))
sketch19.addConstraint(Sketcher.Constraint("Diameter", 1, Q("0.16 in")))
sketch19.addConstraint(Sketcher.Constraint("DistanceY", -1, 1, 0, 3, Q("0.1 in")))
sketch19.setExpression("Constraints[2]", "Params.sketch19_diameter")
sketch19.setExpression("Constraints[3]", "Params.sketch19_diameter2")
pad13 = body3.newObject("PartDesign::Pad", "Pad012")
pad13.Profile = sketch19
pad13.setExpression("Length", "Params.pad13_length")

doc.recompute()
